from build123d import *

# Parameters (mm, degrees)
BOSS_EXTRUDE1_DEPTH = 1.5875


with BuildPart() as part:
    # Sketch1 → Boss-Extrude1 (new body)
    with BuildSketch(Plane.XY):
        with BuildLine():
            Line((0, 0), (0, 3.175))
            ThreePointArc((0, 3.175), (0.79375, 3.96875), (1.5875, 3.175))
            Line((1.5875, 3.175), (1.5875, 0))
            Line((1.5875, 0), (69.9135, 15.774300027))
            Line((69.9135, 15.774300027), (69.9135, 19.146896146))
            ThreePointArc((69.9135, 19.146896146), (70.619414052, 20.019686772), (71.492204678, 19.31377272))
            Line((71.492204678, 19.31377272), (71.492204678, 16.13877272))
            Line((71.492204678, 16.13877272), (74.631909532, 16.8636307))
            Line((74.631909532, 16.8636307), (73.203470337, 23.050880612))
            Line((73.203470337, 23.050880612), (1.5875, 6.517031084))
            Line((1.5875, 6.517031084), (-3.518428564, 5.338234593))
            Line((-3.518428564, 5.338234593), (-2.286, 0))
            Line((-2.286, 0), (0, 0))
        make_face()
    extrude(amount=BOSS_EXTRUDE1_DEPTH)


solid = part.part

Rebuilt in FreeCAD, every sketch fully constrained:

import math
import FreeCAD as App
import Part
import Sketcher
from FreeCAD import Vector
Q = App.Units.Quantity

doc = App.newDocument("Part")
params = doc.addObject("Spreadsheet::Sheet", "Params")
for row, (alias, value) in enumerate([
    ("sketch1_radius", "0.03125 in"),
    ("sketch1_width", "0.09 in"),
    ("sketch1_length", "0.25 in"),
    ("sketch1_height", "0.125 in"),
    ("pad1_length", "0.0625 in"),
], start=1):
    params.set(f"A{row}", alias)
    params.set(f"B{row}", "=" + value)
    params.setAlias(f"B{row}", alias)

body = doc.addObject("PartDesign::Body", "Body")

# Sketch on XY plane
sketch1 = body.newObject("Sketcher::SketchObject", "Sketch")
sketch1.AttachmentSupport = (doc.getObject("XY_Plane"), [""])
sketch1.MapMode = "FlatFace"
sketch1.addGeometry([
    Part.LineSegment(Vector(0, 0, 0), Vector(0, 3.2, 0)),  # 0
    Part.ArcOfCircle(Part.Circle(Vector(0.8, 3.2, 0), Vector(0, 0, 1), 0.8), math.radians(0), math.radians(180)),  # 1
    Part.LineSegment(Vector(1.6, 3.2, 0), Vector(1.6, 0, 0)),  # 2
    Part.LineSegment(Vector(1.6, 0, 0), Vector(69.9, 15.8, 0)),  # 3
    Part.LineSegment(Vector(69.9, 15.8, 0), Vector(69.9, 19.1, 0)),  # 4
    Part.ArcOfCircle(Part.Circle(Vector(70.7, 19.2, 0), Vector(0, 0, 1), 0.8), math.radians(6), math.radians(186)),  # 5
    Part.LineSegment(Vector(71.5, 19.3, 0), Vector(71.5, 16.1, 0)),  # 6
    Part.LineSegment(Vector(71.5, 16.1, 0), Vector(74.6, 16.9, 0)),  # 7
    Part.LineSegment(Vector(74.6, 16.9, 0), Vector(73.2, 23.1, 0)),  # 8
    Part.LineSegment(Vector(73.2, 23.1, 0), Vector(1.6, 6.5, 0)),  # 9
    Part.LineSegment(Vector(1.6, 6.5, 0), Vector(-3.5, 5.3, 0)),  # 10
    Part.LineSegment(Vector(-3.5, 5.3, 0), Vector(-2.3, 0, 0)),  # 11
    Part.LineSegment(Vector(-2.3, 0, 0), Vector(0, 0, 0)),  # 12
], False)
sketch1.addConstraint([
    Sketcher.Constraint("Tangent", 0, 2, 1, 2),
    Sketcher.Constraint("Tangent", 1, 1, 2, 1),
    Sketcher.Constraint("Coincident", 2, 2, 3, 1),
    Sketcher.Constraint("Coincident", 3, 2, 4, 1),
    Sketcher.Constraint("Coincident", 4, 2, 5, 2),
    Sketcher.Constraint("Coincident", 5, 1, 6, 1),
    Sketcher.Constraint("Coincident", 6, 2, 7, 1),
    Sketcher.Constraint("Coincident", 7, 2, 8, 1),
    Sketcher.Constraint("Coincident", 8, 2, 9, 1),
    Sketcher.Constraint("Coincident", 9, 2, 10, 1),
    Sketcher.Constraint("Coincident", 10, 2, 11, 1),
    Sketcher.Constraint("Coincident", 11, 2, 12, 1),
    Sketcher.Constraint("Coincident", 12, 2, 0, 1),
    Sketcher.Constraint("Vertical", 0),
    Sketcher.Constraint("Vertical", 2),
    Sketcher.Constraint("Vertical", 4),
    Sketcher.Constraint("Vertical", 6),
    Sketcher.Constraint("Horizontal", 12),
    Sketcher.Constraint("Coincident", 12, 2, -1, 1),
    Sketcher.Constraint("Equal", 1, 5),
    Sketcher.Constraint("PointOnObject", 2, 2, -1),
    Sketcher.Constraint("Parallel", 3, 7),
    Sketcher.Constraint("Perpendicular", 7, 8),
    Sketcher.Constraint("Perpendicular", 8, 9),
    Sketcher.Constraint("Parallel", 9, 10),
    Sketcher.Constraint("Perpendicular", 10, 11),
    Sketcher.Constraint("Vertical", 2, 2, 9, 2),
    Sketcher.Constraint("Equal", 2, 6),
    Sketcher.Constraint("Angle", 3, Q("13 deg")),
    Sketcher.Constraint("Radius", 1, Q("0.03125 in")),
    Sketcher.Constraint("DistanceX", 12, 1, 12, 2, Q("0.09 in")),
    Sketcher.Constraint("Distance", 8, Q("0.25 in")),
    Sketcher.Constraint("DistanceY", 0, 1, 0, 2, Q("0.125 in")),
    Sketcher.Constraint("DistanceX", 1, 1, 3, 2, Q("2.69 in")),
    Sketcher.Constraint("DistanceY", 4, 2, 8, 2, Q("0.1537002 in")),
    Sketcher.Constraint("Distance", 7, 3.222292),
    Sketcher.Constraint("DistanceY", 4, 1, 4, 2, 3.372596),
    Sketcher.Constraint("DistanceY", 4, 2, 5, 3, 0.083438),
])
sketch1.setExpression("Constraints[29]", "Params.sketch1_radius")
sketch1.setExpression("Constraints[30]", "Params.sketch1_width")
sketch1.setExpression("Constraints[31]", "Params.sketch1_length")
sketch1.setExpression("Constraints[32]", "Params.sketch1_height")
pad1 = body.newObject("PartDesign::Pad", "Pad")
pad1.Profile = sketch1
pad1.setExpression("Length", "Params.pad1_length")

doc.recompute()
